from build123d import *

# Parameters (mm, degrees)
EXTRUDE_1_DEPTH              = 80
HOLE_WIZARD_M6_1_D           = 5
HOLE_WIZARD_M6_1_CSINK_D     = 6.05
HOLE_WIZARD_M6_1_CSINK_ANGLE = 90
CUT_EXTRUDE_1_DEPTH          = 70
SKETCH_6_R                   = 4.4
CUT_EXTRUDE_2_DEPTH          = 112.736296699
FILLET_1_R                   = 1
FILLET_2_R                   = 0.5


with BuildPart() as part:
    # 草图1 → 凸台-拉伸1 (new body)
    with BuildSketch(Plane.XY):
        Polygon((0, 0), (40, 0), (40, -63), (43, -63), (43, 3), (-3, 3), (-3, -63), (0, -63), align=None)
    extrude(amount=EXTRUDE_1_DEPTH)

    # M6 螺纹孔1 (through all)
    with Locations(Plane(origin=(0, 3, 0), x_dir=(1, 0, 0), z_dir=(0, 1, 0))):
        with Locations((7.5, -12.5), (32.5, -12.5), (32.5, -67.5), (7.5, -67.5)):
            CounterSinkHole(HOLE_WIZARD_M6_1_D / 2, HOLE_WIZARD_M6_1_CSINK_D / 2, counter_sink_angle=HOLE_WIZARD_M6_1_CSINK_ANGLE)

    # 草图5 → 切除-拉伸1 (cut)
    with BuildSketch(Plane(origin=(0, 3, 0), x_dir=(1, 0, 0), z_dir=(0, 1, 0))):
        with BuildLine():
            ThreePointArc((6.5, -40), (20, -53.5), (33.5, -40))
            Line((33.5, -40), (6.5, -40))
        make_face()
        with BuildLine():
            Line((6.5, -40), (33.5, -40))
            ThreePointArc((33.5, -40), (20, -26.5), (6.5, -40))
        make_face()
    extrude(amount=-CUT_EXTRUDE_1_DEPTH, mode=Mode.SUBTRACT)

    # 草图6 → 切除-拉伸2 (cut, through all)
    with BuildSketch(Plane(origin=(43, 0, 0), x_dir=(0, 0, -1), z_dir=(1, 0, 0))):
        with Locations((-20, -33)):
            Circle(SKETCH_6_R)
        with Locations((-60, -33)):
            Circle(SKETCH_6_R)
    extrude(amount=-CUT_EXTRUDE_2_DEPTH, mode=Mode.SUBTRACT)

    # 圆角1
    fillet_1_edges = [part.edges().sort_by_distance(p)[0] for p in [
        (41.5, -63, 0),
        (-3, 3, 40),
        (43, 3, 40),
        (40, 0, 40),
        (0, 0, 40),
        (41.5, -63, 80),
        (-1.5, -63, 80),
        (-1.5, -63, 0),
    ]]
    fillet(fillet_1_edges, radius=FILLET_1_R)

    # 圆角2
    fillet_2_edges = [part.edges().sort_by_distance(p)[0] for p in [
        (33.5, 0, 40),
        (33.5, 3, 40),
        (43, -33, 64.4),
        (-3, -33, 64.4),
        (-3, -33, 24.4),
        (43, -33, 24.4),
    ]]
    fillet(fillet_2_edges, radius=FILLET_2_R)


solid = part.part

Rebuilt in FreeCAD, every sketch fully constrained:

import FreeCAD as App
import Part
import Sketcher


def edges_at(feature, points):
    """Names of the edges that pass closest to the given points."""
    edges = feature.Shape.Edges
    near = lambda p: min(range(len(edges)), key=lambda i: edges[i].distToShape(Part.Vertex(*p))[0])
    return sorted({f"Edge{near(p) + 1}" for p in points})

doc = App.newDocument("Part")
params = doc.addObject("Spreadsheet::Sheet", "Params")
for row, (alias, value) in enumerate([
    ("sketch1_width", "40 mm"),
    ("sketch1_width2", "3 mm"),
    ("sketch1_height", "63 mm"),
    ("sketch1_height2", "66 mm"),
    ("pad1_length", "80 mm"),
    ("sketch2_diameter", "5 mm"),
    ("hole_diameter", "5 mm"),
    ("hole_csink_diameter", "6.05 mm"),
    ("sketch3_diameter", "27 mm"),
    ("pocket1_length", "70 mm"),
    ("sketch4_diameter", "8.8 mm"),
    ("fillet_radius", "1 mm"),
    ("fillet2_radius", "0.5 mm"),
], start=1):
    params.set(f"A{row}", alias)
    params.set(f"B{row}", "=" + value)
    params.setAlias(f"B{row}", alias)

body = doc.addObject("PartDesign::Body", "Body")

# Sketch on XY plane
sketch1 = body.newObject("Sketcher::SketchObject", "Sketch")
sketch1.AttachmentSupport = (doc.getObject("XY_Plane"), [""])
sketch1.MapMode = "FlatFace"
sketch1.addGeometry([
    Part.LineSegment(App.Vector(0, 0, 0), App.Vector(40, 0, 0)),  # 0
    Part.LineSegment(App.Vector(40, 0, 0), App.Vector(40, -63, 0)),  # 1
    Part.LineSegment(App.Vector(40, -63, 0), App.Vector(43, -63, 0)),  # 2
    Part.LineSegment(App.Vector(43, -63, 0), App.Vector(43, 3, 0)),  # 3
    Part.LineSegment(App.Vector(43, 3, 0), App.Vector(-3, 3, 0)),  # 4
    Part.LineSegment(App.Vector(-3, 3, 0), App.Vector(-3, -63, 0)),  # 5
    Part.LineSegment(App.Vector(-3, -63, 0), App.Vector(0, -63, 0)),  # 6
    Part.LineSegment(App.Vector(0, -63, 0), App.Vector(0, 0, 0)),  # 7
], False)
sketch1.addConstraint([
    Sketcher.Constraint("Coincident", 0, 2, 1, 1),
    Sketcher.Constraint("Coincident", 1, 2, 2, 1),
    Sketcher.Constraint("Coincident", 2, 2, 3, 1),
    Sketcher.Constraint("Coincident", 3, 2, 4, 1),
    Sketcher.Constraint("Coincident", 4, 2, 5, 1),
    Sketcher.Constraint("Coincident", 5, 2, 6, 1),
    Sketcher.Constraint("Coincident", 6, 2, 7, 1),
    Sketcher.Constraint("Coincident", 7, 2, 0, 1),
    Sketcher.Constraint("Horizontal", 0),
    Sketcher.Constraint("Vertical", 1),
    Sketcher.Constraint("Horizontal", 2),
    Sketcher.Constraint("Vertical", 3),
    Sketcher.Constraint("Horizontal", 4),
    Sketcher.Constraint("Vertical", 5),
    Sketcher.Constraint("Horizontal", 6),
    Sketcher.Constraint("Vertical", 7),
    Sketcher.Constraint("Coincident", 7, 2, -1, 1),
    Sketcher.Constraint("Horizontal", 2, 2, 5, 2),
    Sketcher.Constraint("Equal", 2, 6),
    Sketcher.Constraint("DistanceX", 0, 1, 0, 2, 40.0),
    Sketcher.Constraint("DistanceX", 2, 1, 2, 2, 3.0),
    Sketcher.Constraint("DistanceY", 1, 2, 1, 1, 63.0),
    Sketcher.Constraint("DistanceY", 3, 1, 3, 2, 66.0),
])
sketch1.setExpression("Constraints[19]", "Params.sketch1_width")
sketch1.setExpression("Constraints[20]", "Params.sketch1_width2")
sketch1.setExpression("Constraints[21]", "Params.sketch1_height")
sketch1.setExpression("Constraints[22]", "Params.sketch1_height2")
pad1 = body.newObject("PartDesign::Pad", "Pad")
pad1.Profile = sketch1
pad1.setExpression("Length", "Params.pad1_length")

# Sketch on XZ plane
sketch2 = body.newObject("Sketcher::SketchObject", "Sketch001")
sketch2.AttachmentSupport = (doc.getObject("XZ_Plane"), [""])
sketch2.MapMode = "FlatFace"
sketch2.AttachmentOffset = App.Placement(App.Vector(0, 0, -3), App.Rotation())
sketch2.addGeometry([
    Part.Circle(App.Vector(7.5, 12.5, 0), App.Vector(0, 0, 1), 2.5),
    Part.Circle(App.Vector(32.5, 12.5, 0), App.Vector(0, 0, 1), 2.5),
    Part.Circle(App.Vector(32.5, 67.5, 0), App.Vector(0, 0, 1), 2.5),
    Part.Circle(App.Vector(7.5, 67.5, 0), App.Vector(0, 0, 1), 2.5),
], False)
sketch2.addConstraint([
    Sketcher.Constraint("Equal", 0, 1),
    Sketcher.Constraint("Equal", 1, 2),
    Sketcher.Constraint("Equal", 2, 3),
    Sketcher.Constraint("Horizontal", 0, 3, 1, 3),
    Sketcher.Constraint("Horizontal", 2, 3, 3, 3),
    Sketcher.Constraint("Vertical", 1, 3, 2, 3),
    Sketcher.Constraint("Vertical", 0, 3, 3, 3),
    Sketcher.Constraint("Diameter", 0, 5.0),
    Sketcher.Constraint("DistanceX", 0, 3, 1, 3, 25.0),
    Sketcher.Constraint("DistanceY", 1, 3, 2, 3, 55.0),
    Sketcher.Constraint("DistanceX", -1, 1, 0, 3, 7.5),
    Sketcher.Constraint("DistanceY", -1, 1, 0, 3, 12.5),
])
sketch2.setExpression("Constraints[7]", "Params.sketch2_diameter")
doc.recompute()
hole = body.newObject("PartDesign::Hole", "Hole")
hole.Profile = sketch2
hole.ThreadType = "None"
hole.setExpression("Diameter", "Params.hole_diameter")
hole.DepthType = "ThroughAll"
hole.HoleCutType = "Countersink"
hole.setExpression("HoleCutDiameter", "Params.hole_csink_diameter")
hole.HoleCutCountersinkAngle = 90
hole.Reversed = True

# Sketch on XZ plane
sketch3 = body.newObject("Sketcher::SketchObject", "Sketch002")
sketch3.AttachmentSupport = (doc.getObject("XZ_Plane"), [""])
sketch3.MapMode = "FlatFace"
sketch3.AttachmentOffset = App.Placement(App.Vector(0, 0, -3), App.Rotation())
sketch3.addGeometry(Part.Circle(App.Vector(20, 40, 0), App.Vector(0, 0, 1), 14), False)
sketch3.addConstraint([
    Sketcher.Constraint("Diameter", 0, 27.0),
    Sketcher.Constraint("DistanceX", -1, 1, 0, 3, 20.0),
    Sketcher.Constraint("DistanceY", -1, 1, 0, 3, 40.0),
])
sketch3.setExpression("Constraints[0]", "Params.sketch3_diameter")
pocket1 = body.newObject("PartDesign::Pocket", "Pocket")
pocket1.Profile = sketch3
pocket1.setExpression("Length", "Params.pocket1_length")
pocket1.Reversed = True

# Sketch on YZ plane
sketch4 = body.newObject("Sketcher::SketchObject", "Sketch003")
sketch4.AttachmentSupport = (doc.getObject("YZ_Plane"), [""])
sketch4.MapMode = "FlatFace"
sketch4.AttachmentOffset = App.Placement(App.Vector(0, 0, 43), App.Rotation())
sketch4.addGeometry([
    Part.Circle(App.Vector(-33, 20, 0), App.Vector(0, 0, 1), 4.4),
    Part.Circle(App.Vector(-33, 60, 0), App.Vector(0, 0, 1), 4.4),
], False)
sketch4.addConstraint([
    Sketcher.Constraint("Equal", 0, 1),
    Sketcher.Constraint("Vertical", 0, 3, 1, 3),
    Sketcher.Constraint("Diameter", 0, 8.8),
    Sketcher.Constraint("DistanceX", 0, 3, -1, 1, 33.0),
    Sketcher.Constraint("DistanceY", -1, 1, 0, 3, 20.0),
    Sketcher.Constraint("DistanceY", -1, 1, 1, 3, 60.0),
])
sketch4.setExpression("Constraints[2]", "Params.sketch4_diameter")
pocket2 = body.newObject("PartDesign::Pocket", "Pocket001")
pocket2.Profile = sketch4
pocket2.Type = "ThroughAll"
doc.recompute()

fillet = body.newObject("PartDesign::Fillet", "Fillet")
fillet.Base = (pocket2, edges_at(pocket2, [
    (41.5, -63, 0),
    (-3, 3, 40),
    (43, 3, 40),
    (40, 0, 40),
    (0, 0, 40),
    (41.5, -63, 80),
    (-1.5, -63, 80),
    (-1.5, -63, 0),
]))
fillet.setExpression("Radius", "Params.fillet_radius")
doc.recompute()

fillet2 = body.newObject("PartDesign::Fillet", "Fillet001")
fillet2.Base = (fillet, edges_at(fillet, [
    (6.5, 0, 40),
    (6.5, 3, 40),
    (43, -33, 64.4),
    (-3, -33, 64.4),
    (-3, -33, 24.4),
    (43, -33, 24.4),
]))
fillet2.setExpression("Radius", "Params.fillet2_radius")

doc.recompute()
